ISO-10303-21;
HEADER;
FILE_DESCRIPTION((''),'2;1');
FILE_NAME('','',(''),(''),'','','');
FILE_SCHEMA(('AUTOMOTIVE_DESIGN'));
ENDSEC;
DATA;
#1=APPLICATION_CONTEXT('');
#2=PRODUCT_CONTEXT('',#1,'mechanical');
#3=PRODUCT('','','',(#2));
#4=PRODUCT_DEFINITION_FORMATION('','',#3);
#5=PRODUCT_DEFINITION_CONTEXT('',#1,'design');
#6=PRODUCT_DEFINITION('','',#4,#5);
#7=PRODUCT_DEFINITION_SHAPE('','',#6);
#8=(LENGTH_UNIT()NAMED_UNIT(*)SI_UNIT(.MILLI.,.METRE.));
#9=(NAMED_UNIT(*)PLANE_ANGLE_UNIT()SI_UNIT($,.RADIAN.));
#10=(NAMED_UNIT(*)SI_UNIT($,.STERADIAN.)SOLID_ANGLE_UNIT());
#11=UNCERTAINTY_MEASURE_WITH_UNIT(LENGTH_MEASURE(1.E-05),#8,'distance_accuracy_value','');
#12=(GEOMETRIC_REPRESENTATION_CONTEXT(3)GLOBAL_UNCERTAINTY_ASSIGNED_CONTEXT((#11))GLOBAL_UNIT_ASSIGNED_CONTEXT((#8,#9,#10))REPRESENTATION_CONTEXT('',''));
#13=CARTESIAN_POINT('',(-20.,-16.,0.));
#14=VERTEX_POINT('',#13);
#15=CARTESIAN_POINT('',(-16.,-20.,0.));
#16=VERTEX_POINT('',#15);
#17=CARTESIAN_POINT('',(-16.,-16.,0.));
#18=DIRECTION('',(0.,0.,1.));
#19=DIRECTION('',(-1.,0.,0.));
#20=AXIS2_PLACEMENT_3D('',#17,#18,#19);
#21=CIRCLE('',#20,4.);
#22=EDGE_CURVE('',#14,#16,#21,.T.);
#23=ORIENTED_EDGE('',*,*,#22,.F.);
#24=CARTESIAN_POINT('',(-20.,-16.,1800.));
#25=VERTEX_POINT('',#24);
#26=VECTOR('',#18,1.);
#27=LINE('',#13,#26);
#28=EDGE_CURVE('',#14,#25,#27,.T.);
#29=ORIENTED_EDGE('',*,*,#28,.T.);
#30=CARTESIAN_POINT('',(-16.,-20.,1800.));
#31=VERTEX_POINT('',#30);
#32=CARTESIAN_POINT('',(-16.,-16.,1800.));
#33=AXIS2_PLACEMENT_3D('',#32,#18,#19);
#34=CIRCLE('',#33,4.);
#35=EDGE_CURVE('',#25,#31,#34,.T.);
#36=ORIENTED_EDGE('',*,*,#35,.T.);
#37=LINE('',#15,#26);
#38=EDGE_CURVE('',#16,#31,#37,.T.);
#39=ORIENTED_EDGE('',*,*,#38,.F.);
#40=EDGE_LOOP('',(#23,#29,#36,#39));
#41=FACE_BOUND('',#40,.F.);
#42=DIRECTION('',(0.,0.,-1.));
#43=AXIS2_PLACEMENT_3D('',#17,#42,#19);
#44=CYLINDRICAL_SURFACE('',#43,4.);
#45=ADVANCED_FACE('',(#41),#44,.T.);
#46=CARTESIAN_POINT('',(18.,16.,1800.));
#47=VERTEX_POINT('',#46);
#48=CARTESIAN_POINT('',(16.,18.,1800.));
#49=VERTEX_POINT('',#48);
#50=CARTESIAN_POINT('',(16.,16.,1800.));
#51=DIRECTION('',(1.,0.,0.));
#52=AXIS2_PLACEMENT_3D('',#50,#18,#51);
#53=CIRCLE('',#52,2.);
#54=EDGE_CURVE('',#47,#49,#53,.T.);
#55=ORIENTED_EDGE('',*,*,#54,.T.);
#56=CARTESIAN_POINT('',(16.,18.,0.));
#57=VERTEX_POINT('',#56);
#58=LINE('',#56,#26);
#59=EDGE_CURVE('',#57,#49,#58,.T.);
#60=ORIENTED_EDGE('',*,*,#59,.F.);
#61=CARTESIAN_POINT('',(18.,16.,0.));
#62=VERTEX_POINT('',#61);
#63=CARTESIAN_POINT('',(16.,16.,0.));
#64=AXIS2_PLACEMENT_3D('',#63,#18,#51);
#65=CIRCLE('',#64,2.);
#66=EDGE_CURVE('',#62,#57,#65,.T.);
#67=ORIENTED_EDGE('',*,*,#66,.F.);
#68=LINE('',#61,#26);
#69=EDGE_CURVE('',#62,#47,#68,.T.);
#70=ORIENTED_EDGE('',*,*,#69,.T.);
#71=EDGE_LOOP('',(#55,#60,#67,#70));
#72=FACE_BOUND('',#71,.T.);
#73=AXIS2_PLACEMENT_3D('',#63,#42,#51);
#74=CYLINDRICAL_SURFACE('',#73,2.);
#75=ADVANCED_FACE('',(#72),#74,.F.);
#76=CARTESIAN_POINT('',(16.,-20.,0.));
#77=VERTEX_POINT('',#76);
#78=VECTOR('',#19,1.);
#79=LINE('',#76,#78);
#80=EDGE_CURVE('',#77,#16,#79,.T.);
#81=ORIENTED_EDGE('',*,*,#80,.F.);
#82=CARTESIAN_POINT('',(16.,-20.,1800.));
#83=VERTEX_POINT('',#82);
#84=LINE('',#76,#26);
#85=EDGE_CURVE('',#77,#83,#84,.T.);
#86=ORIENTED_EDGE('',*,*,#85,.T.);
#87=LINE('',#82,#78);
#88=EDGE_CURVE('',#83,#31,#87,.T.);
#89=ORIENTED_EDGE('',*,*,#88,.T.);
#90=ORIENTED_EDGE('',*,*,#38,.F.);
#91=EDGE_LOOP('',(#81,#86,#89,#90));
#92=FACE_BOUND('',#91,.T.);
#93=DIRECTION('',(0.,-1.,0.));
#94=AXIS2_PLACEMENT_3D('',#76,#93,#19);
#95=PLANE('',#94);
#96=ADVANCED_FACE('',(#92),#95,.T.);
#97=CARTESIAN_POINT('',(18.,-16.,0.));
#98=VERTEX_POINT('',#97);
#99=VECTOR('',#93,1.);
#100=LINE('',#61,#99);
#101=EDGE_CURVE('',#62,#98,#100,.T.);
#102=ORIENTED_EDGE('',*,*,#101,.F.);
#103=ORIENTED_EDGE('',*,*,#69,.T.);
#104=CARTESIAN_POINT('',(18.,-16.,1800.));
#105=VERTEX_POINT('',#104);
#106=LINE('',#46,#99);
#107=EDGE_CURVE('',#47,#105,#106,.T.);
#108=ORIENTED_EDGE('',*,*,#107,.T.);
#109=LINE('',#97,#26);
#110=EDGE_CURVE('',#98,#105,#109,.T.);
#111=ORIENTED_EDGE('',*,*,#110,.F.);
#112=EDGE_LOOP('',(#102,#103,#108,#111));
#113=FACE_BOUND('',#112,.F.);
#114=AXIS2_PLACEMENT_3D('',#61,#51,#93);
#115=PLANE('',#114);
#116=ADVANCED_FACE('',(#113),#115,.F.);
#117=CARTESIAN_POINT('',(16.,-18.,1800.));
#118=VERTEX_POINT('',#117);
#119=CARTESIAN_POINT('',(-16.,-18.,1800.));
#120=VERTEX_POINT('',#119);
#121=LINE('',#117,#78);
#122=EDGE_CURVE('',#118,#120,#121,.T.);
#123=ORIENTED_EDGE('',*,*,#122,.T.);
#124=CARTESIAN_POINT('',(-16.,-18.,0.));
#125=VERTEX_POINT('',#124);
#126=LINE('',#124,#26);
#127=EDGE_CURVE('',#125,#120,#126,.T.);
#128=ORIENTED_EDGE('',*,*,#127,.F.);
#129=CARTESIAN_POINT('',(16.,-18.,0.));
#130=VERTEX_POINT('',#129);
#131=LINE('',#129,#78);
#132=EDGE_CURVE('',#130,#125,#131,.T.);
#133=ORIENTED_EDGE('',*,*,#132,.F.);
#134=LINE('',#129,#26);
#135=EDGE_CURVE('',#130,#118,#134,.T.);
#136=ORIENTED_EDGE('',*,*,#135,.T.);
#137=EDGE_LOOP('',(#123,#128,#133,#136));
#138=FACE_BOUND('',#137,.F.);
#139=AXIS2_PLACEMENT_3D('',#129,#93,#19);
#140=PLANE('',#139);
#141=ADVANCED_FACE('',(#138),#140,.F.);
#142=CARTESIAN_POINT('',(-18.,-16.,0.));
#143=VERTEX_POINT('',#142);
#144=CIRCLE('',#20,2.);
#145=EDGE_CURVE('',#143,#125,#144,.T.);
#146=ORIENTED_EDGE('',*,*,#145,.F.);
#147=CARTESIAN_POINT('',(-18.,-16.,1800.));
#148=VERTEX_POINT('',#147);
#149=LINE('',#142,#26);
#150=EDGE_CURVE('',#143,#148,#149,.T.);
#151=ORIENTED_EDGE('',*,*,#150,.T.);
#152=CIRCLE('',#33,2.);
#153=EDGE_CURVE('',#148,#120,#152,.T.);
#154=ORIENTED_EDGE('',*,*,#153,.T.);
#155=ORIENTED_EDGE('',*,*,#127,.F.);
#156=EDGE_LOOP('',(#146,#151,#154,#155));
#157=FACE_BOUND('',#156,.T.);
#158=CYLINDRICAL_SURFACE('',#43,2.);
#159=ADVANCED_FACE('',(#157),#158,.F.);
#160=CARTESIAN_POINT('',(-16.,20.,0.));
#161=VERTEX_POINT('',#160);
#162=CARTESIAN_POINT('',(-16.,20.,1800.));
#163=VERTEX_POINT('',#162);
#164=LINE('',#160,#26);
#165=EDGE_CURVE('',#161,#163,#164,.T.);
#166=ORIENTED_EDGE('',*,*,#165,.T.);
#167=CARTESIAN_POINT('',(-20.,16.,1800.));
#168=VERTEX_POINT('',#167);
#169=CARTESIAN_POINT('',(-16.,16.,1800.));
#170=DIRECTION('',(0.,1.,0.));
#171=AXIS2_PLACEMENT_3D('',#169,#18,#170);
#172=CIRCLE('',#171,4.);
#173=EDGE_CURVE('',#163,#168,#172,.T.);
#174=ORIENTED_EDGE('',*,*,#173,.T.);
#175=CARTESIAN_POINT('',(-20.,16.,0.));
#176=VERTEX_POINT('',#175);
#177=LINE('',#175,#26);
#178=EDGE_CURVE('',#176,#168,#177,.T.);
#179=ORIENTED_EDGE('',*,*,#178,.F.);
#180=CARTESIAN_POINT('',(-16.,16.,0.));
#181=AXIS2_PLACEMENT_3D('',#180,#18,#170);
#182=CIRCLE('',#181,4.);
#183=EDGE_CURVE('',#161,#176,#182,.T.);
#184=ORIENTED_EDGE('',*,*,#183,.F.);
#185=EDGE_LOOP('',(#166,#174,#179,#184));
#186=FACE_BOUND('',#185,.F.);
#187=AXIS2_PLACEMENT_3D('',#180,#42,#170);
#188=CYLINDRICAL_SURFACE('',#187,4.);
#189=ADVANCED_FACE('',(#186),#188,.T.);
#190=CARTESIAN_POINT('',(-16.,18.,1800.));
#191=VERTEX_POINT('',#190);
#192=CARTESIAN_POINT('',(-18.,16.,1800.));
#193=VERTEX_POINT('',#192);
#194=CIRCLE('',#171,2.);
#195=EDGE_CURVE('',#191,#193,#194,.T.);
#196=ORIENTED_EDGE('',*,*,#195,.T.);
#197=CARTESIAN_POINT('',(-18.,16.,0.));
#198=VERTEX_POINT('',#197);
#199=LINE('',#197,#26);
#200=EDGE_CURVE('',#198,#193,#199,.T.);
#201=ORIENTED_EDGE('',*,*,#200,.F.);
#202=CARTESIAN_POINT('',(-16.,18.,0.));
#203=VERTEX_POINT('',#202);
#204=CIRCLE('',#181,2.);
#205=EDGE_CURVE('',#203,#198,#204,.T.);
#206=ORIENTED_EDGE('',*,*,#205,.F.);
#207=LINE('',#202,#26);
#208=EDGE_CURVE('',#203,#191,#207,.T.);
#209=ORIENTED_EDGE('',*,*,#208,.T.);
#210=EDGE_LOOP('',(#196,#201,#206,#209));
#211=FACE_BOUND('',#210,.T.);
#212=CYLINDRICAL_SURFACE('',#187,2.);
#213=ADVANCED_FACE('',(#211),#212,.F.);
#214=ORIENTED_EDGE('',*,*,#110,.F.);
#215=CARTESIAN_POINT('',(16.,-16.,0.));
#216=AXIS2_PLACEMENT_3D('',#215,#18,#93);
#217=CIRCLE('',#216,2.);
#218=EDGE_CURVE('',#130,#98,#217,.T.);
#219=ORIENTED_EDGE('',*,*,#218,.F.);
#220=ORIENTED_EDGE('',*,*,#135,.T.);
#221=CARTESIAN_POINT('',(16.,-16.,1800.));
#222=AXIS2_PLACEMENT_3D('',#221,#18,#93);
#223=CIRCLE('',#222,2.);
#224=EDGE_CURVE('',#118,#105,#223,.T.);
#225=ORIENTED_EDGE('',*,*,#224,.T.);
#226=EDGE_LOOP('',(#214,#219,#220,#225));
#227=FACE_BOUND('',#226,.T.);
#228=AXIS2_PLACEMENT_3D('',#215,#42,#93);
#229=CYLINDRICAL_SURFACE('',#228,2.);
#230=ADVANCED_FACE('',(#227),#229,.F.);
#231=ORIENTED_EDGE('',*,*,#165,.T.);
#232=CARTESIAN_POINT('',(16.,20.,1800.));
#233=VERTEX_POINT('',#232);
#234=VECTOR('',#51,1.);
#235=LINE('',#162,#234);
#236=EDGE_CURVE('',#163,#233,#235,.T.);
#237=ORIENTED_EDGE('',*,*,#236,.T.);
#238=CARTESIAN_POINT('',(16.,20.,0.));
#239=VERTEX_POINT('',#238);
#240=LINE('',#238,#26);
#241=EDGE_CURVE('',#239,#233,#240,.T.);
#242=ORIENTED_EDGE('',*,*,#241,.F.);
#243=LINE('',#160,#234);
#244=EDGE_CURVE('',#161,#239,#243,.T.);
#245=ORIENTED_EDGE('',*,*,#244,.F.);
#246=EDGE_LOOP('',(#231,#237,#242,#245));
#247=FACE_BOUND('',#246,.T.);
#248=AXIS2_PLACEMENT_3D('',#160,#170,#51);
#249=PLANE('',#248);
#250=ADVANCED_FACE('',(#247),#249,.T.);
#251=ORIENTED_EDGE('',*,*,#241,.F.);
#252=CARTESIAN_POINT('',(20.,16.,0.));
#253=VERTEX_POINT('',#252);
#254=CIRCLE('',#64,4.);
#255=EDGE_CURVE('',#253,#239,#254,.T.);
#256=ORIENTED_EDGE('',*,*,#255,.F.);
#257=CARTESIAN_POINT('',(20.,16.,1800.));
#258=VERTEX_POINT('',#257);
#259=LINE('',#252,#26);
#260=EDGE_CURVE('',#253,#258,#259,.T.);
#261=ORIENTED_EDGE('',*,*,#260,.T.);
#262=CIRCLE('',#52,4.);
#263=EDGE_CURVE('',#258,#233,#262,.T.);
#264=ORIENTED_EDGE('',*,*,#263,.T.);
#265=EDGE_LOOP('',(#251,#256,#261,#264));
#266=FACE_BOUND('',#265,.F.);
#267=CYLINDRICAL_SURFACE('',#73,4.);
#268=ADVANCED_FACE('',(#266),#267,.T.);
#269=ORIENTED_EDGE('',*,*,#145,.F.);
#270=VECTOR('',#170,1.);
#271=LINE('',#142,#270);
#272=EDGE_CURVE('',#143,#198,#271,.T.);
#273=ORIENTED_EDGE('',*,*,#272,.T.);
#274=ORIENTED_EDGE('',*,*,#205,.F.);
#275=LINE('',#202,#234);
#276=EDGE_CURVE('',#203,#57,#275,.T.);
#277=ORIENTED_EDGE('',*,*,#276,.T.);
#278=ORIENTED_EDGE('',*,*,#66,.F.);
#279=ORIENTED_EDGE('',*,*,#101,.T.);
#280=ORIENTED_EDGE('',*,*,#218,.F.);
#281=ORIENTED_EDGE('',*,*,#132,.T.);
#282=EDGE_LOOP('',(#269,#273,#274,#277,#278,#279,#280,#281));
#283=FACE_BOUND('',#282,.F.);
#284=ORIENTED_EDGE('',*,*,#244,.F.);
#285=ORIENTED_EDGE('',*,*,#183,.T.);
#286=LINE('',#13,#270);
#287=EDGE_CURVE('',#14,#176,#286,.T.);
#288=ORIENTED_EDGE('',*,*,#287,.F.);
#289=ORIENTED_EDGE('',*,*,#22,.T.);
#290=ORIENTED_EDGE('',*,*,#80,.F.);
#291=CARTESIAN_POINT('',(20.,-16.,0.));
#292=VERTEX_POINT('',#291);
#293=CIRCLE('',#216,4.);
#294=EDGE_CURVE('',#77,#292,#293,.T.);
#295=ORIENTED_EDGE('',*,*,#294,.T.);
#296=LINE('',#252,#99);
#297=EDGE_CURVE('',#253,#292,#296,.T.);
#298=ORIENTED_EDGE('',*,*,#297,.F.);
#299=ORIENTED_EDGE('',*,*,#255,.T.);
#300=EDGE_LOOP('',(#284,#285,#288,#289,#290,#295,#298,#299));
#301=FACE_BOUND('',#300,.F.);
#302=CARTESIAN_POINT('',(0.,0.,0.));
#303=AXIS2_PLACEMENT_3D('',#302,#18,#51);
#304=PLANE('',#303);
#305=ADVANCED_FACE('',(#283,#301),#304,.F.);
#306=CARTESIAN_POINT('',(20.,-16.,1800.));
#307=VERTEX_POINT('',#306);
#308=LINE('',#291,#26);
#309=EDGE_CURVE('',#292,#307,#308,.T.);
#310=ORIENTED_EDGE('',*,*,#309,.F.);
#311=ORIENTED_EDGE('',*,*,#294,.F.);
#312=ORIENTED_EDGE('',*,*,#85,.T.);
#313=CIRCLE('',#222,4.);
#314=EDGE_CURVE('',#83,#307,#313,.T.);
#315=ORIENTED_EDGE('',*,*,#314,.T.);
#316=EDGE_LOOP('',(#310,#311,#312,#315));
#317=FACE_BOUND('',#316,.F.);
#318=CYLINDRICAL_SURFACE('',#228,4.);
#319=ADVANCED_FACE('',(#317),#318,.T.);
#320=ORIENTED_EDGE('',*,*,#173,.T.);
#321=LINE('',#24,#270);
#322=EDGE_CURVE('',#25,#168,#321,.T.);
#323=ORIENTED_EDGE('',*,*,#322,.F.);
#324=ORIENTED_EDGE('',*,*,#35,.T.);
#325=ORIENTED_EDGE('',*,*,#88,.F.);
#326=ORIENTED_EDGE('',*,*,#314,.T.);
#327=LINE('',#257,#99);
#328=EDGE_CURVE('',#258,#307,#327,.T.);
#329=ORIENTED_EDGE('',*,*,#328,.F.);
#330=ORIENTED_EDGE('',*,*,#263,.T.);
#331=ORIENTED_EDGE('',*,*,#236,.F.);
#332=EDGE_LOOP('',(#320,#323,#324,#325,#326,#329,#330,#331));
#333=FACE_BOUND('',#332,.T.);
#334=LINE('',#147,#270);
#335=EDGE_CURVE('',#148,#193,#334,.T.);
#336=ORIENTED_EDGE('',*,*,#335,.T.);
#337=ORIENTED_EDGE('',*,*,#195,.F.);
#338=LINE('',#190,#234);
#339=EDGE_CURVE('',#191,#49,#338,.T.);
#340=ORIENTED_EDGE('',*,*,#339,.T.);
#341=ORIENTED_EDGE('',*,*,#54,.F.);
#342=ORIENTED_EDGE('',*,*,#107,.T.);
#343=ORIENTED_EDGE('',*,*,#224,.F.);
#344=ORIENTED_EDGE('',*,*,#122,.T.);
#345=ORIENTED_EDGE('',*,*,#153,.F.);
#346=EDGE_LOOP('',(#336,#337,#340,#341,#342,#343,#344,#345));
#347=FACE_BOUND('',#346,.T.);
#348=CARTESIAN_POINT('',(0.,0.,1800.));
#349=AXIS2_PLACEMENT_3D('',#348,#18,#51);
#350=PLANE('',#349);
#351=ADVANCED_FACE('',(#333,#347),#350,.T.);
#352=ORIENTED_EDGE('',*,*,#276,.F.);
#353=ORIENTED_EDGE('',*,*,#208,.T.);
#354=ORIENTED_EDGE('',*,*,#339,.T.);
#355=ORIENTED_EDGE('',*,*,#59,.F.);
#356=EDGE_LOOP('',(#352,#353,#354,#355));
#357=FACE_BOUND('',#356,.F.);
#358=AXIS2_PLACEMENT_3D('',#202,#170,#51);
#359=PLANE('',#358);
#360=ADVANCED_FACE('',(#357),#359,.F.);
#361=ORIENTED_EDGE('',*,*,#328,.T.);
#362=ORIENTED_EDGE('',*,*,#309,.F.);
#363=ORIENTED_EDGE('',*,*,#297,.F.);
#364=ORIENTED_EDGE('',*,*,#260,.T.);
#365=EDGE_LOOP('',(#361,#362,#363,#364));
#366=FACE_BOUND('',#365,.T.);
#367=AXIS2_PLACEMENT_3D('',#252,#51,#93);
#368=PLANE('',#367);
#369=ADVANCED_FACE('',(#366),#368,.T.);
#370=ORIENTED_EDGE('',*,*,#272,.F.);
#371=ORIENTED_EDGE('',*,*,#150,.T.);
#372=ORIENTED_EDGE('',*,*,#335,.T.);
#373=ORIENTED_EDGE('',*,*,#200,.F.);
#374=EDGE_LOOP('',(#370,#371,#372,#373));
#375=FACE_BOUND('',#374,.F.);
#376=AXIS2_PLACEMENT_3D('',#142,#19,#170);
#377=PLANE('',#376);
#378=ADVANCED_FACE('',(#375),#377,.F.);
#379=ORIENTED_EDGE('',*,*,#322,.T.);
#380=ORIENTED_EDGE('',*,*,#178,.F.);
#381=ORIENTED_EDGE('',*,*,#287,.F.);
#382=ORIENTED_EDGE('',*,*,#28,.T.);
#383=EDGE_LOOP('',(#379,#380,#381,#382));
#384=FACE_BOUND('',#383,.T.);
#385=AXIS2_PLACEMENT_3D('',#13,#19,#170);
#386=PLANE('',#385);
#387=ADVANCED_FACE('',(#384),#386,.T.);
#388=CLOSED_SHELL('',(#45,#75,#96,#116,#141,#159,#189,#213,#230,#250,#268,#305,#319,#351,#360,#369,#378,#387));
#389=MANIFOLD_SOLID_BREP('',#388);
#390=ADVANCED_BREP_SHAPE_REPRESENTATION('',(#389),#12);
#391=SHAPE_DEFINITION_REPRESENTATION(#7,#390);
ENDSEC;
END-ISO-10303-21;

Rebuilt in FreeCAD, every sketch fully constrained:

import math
import FreeCAD as App
import Part
import Sketcher

doc = App.newDocument("Part")
params = doc.addObject("Spreadsheet::Sheet", "Params")
for row, (alias, value) in enumerate([
    ("sketch1_radius", "4 mm"),
    ("sketch1_radius2", "2 mm"),
    ("pad1_length", "1800 mm"),
], start=1):
    params.set(f"A{row}", alias)
    params.set(f"B{row}", "=" + value)
    params.setAlias(f"B{row}", alias)

body = doc.addObject("PartDesign::Body", "Body")

sketch1 = body.newObject("Sketcher::SketchObject", "Sketch")
sketch1.AttachmentSupport = (doc.getObject("XY_Plane"), [""])
sketch1.MapMode = "FlatFace"
sketch1.addGeometry([
    Part.LineSegment(App.Vector(-20, 16, 0), App.Vector(-20, -16, 0)),
    Part.ArcOfCircle(Part.Circle(App.Vector(-16, -16, 0), App.Vector(0, 0, 1), 4), math.radians(180), math.radians(270)),
    Part.LineSegment(App.Vector(-16, -20, 0), App.Vector(16, -20, 0)),
    Part.ArcOfCircle(Part.Circle(App.Vector(16, -16, 0), App.Vector(0, 0, 1), 4), math.radians(-90), math.radians(0)),
    Part.LineSegment(App.Vector(20, -16, 0), App.Vector(20, 16, 0)),
    Part.ArcOfCircle(Part.Circle(App.Vector(16, 16, 0), App.Vector(0, 0, 1), 4), math.radians(0), math.radians(90)),
    Part.LineSegment(App.Vector(16, 20, 0), App.Vector(-16, 20, 0)),
    Part.ArcOfCircle(Part.Circle(App.Vector(-16, 16, 0), App.Vector(0, 0, 1), 4), math.radians(90), math.radians(180)),
    Part.ArcOfCircle(Part.Circle(App.Vector(-16, 16, 0), App.Vector(0, 0, 1), 2), math.radians(90), math.radians(180)),
    Part.LineSegment(App.Vector(-16, 18, 0), App.Vector(16, 18, 0)),
    Part.ArcOfCircle(Part.Circle(App.Vector(16, 16, 0), App.Vector(0, 0, 1), 2), math.radians(0), math.radians(90)),
    Part.LineSegment(App.Vector(18, 16, 0), App.Vector(18, -16, 0)),
    Part.ArcOfCircle(Part.Circle(App.Vector(16, -16, 0), App.Vector(0, 0, 1), 2), math.radians(-90), math.radians(0)),
    Part.LineSegment(App.Vector(16, -18, 0), App.Vector(-16, -18, 0)),
    Part.ArcOfCircle(Part.Circle(App.Vector(-16, -16, 0), App.Vector(0, 0, 1), 2), math.radians(180), math.radians(270)),
    Part.LineSegment(App.Vector(-18, -16, 0), App.Vector(-18, 16, 0)),
], False)
sketch1.addConstraint([
    Sketcher.Constraint("Tangent", 0, 2, 1, 1),
    Sketcher.Constraint("Tangent", 1, 2, 2, 1),
    Sketcher.Constraint("Tangent", 2, 2, 3, 1),
    Sketcher.Constraint("Tangent", 3, 2, 4, 1),
    Sketcher.Constraint("Tangent", 4, 2, 5, 1),
    Sketcher.Constraint("Tangent", 5, 2, 6, 1),
    Sketcher.Constraint("Tangent", 6, 2, 7, 1),
    Sketcher.Constraint("Tangent", 7, 2, 0, 1),
    Sketcher.Constraint("Tangent", 8, 1, 9, 1),
    Sketcher.Constraint("Tangent", 9, 2, 10, 2),
    Sketcher.Constraint("Tangent", 10, 1, 11, 1),
    Sketcher.Constraint("Tangent", 11, 2, 12, 2),
    Sketcher.Constraint("Tangent", 12, 1, 13, 1),
    Sketcher.Constraint("Tangent", 13, 2, 14, 2),
    Sketcher.Constraint("Tangent", 14, 1, 15, 1),
    Sketcher.Constraint("Tangent", 15, 2, 8, 2),
    Sketcher.Constraint("Vertical", 0),
    Sketcher.Constraint("Horizontal", 2),
    Sketcher.Constraint("Vertical", 4),
    Sketcher.Constraint("Horizontal", 6),
    Sketcher.Constraint("Horizontal", 9),
    Sketcher.Constraint("Vertical", 11),
    Sketcher.Constraint("Horizontal", 13),
    Sketcher.Constraint("Vertical", 15),
    Sketcher.Constraint("Coincident", 8, 3, 7, 3),
    Sketcher.Constraint("Coincident", 10, 3, 5, 3),
    Sketcher.Constraint("Coincident", 12, 3, 3, 3),
    Sketcher.Constraint("Equal", 1, 3),
    Sketcher.Constraint("Equal", 3, 5),
    Sketcher.Constraint("Equal", 5, 7),
    Sketcher.Constraint("Equal", 12, 14),
    Sketcher.Constraint("Symmetric", 1, 3, 5, 3, -1, 1),
    Sketcher.Constraint("Equal", 13, 0),
    Sketcher.Constraint("Radius", 1, 4.0),
    Sketcher.Constraint("Radius", 8, 2.0),
    Sketcher.Constraint("DistanceX", 0, 2, -1, 1, 20.0),
])
sketch1.setExpression("Constraints[33]", "Params.sketch1_radius")
sketch1.setExpression("Constraints[34]", "Params.sketch1_radius2")
pad1 = body.newObject("PartDesign::Pad", "Pad")
pad1.Profile = sketch1
pad1.setExpression("Length", "Params.pad1_length")

doc.recompute()
